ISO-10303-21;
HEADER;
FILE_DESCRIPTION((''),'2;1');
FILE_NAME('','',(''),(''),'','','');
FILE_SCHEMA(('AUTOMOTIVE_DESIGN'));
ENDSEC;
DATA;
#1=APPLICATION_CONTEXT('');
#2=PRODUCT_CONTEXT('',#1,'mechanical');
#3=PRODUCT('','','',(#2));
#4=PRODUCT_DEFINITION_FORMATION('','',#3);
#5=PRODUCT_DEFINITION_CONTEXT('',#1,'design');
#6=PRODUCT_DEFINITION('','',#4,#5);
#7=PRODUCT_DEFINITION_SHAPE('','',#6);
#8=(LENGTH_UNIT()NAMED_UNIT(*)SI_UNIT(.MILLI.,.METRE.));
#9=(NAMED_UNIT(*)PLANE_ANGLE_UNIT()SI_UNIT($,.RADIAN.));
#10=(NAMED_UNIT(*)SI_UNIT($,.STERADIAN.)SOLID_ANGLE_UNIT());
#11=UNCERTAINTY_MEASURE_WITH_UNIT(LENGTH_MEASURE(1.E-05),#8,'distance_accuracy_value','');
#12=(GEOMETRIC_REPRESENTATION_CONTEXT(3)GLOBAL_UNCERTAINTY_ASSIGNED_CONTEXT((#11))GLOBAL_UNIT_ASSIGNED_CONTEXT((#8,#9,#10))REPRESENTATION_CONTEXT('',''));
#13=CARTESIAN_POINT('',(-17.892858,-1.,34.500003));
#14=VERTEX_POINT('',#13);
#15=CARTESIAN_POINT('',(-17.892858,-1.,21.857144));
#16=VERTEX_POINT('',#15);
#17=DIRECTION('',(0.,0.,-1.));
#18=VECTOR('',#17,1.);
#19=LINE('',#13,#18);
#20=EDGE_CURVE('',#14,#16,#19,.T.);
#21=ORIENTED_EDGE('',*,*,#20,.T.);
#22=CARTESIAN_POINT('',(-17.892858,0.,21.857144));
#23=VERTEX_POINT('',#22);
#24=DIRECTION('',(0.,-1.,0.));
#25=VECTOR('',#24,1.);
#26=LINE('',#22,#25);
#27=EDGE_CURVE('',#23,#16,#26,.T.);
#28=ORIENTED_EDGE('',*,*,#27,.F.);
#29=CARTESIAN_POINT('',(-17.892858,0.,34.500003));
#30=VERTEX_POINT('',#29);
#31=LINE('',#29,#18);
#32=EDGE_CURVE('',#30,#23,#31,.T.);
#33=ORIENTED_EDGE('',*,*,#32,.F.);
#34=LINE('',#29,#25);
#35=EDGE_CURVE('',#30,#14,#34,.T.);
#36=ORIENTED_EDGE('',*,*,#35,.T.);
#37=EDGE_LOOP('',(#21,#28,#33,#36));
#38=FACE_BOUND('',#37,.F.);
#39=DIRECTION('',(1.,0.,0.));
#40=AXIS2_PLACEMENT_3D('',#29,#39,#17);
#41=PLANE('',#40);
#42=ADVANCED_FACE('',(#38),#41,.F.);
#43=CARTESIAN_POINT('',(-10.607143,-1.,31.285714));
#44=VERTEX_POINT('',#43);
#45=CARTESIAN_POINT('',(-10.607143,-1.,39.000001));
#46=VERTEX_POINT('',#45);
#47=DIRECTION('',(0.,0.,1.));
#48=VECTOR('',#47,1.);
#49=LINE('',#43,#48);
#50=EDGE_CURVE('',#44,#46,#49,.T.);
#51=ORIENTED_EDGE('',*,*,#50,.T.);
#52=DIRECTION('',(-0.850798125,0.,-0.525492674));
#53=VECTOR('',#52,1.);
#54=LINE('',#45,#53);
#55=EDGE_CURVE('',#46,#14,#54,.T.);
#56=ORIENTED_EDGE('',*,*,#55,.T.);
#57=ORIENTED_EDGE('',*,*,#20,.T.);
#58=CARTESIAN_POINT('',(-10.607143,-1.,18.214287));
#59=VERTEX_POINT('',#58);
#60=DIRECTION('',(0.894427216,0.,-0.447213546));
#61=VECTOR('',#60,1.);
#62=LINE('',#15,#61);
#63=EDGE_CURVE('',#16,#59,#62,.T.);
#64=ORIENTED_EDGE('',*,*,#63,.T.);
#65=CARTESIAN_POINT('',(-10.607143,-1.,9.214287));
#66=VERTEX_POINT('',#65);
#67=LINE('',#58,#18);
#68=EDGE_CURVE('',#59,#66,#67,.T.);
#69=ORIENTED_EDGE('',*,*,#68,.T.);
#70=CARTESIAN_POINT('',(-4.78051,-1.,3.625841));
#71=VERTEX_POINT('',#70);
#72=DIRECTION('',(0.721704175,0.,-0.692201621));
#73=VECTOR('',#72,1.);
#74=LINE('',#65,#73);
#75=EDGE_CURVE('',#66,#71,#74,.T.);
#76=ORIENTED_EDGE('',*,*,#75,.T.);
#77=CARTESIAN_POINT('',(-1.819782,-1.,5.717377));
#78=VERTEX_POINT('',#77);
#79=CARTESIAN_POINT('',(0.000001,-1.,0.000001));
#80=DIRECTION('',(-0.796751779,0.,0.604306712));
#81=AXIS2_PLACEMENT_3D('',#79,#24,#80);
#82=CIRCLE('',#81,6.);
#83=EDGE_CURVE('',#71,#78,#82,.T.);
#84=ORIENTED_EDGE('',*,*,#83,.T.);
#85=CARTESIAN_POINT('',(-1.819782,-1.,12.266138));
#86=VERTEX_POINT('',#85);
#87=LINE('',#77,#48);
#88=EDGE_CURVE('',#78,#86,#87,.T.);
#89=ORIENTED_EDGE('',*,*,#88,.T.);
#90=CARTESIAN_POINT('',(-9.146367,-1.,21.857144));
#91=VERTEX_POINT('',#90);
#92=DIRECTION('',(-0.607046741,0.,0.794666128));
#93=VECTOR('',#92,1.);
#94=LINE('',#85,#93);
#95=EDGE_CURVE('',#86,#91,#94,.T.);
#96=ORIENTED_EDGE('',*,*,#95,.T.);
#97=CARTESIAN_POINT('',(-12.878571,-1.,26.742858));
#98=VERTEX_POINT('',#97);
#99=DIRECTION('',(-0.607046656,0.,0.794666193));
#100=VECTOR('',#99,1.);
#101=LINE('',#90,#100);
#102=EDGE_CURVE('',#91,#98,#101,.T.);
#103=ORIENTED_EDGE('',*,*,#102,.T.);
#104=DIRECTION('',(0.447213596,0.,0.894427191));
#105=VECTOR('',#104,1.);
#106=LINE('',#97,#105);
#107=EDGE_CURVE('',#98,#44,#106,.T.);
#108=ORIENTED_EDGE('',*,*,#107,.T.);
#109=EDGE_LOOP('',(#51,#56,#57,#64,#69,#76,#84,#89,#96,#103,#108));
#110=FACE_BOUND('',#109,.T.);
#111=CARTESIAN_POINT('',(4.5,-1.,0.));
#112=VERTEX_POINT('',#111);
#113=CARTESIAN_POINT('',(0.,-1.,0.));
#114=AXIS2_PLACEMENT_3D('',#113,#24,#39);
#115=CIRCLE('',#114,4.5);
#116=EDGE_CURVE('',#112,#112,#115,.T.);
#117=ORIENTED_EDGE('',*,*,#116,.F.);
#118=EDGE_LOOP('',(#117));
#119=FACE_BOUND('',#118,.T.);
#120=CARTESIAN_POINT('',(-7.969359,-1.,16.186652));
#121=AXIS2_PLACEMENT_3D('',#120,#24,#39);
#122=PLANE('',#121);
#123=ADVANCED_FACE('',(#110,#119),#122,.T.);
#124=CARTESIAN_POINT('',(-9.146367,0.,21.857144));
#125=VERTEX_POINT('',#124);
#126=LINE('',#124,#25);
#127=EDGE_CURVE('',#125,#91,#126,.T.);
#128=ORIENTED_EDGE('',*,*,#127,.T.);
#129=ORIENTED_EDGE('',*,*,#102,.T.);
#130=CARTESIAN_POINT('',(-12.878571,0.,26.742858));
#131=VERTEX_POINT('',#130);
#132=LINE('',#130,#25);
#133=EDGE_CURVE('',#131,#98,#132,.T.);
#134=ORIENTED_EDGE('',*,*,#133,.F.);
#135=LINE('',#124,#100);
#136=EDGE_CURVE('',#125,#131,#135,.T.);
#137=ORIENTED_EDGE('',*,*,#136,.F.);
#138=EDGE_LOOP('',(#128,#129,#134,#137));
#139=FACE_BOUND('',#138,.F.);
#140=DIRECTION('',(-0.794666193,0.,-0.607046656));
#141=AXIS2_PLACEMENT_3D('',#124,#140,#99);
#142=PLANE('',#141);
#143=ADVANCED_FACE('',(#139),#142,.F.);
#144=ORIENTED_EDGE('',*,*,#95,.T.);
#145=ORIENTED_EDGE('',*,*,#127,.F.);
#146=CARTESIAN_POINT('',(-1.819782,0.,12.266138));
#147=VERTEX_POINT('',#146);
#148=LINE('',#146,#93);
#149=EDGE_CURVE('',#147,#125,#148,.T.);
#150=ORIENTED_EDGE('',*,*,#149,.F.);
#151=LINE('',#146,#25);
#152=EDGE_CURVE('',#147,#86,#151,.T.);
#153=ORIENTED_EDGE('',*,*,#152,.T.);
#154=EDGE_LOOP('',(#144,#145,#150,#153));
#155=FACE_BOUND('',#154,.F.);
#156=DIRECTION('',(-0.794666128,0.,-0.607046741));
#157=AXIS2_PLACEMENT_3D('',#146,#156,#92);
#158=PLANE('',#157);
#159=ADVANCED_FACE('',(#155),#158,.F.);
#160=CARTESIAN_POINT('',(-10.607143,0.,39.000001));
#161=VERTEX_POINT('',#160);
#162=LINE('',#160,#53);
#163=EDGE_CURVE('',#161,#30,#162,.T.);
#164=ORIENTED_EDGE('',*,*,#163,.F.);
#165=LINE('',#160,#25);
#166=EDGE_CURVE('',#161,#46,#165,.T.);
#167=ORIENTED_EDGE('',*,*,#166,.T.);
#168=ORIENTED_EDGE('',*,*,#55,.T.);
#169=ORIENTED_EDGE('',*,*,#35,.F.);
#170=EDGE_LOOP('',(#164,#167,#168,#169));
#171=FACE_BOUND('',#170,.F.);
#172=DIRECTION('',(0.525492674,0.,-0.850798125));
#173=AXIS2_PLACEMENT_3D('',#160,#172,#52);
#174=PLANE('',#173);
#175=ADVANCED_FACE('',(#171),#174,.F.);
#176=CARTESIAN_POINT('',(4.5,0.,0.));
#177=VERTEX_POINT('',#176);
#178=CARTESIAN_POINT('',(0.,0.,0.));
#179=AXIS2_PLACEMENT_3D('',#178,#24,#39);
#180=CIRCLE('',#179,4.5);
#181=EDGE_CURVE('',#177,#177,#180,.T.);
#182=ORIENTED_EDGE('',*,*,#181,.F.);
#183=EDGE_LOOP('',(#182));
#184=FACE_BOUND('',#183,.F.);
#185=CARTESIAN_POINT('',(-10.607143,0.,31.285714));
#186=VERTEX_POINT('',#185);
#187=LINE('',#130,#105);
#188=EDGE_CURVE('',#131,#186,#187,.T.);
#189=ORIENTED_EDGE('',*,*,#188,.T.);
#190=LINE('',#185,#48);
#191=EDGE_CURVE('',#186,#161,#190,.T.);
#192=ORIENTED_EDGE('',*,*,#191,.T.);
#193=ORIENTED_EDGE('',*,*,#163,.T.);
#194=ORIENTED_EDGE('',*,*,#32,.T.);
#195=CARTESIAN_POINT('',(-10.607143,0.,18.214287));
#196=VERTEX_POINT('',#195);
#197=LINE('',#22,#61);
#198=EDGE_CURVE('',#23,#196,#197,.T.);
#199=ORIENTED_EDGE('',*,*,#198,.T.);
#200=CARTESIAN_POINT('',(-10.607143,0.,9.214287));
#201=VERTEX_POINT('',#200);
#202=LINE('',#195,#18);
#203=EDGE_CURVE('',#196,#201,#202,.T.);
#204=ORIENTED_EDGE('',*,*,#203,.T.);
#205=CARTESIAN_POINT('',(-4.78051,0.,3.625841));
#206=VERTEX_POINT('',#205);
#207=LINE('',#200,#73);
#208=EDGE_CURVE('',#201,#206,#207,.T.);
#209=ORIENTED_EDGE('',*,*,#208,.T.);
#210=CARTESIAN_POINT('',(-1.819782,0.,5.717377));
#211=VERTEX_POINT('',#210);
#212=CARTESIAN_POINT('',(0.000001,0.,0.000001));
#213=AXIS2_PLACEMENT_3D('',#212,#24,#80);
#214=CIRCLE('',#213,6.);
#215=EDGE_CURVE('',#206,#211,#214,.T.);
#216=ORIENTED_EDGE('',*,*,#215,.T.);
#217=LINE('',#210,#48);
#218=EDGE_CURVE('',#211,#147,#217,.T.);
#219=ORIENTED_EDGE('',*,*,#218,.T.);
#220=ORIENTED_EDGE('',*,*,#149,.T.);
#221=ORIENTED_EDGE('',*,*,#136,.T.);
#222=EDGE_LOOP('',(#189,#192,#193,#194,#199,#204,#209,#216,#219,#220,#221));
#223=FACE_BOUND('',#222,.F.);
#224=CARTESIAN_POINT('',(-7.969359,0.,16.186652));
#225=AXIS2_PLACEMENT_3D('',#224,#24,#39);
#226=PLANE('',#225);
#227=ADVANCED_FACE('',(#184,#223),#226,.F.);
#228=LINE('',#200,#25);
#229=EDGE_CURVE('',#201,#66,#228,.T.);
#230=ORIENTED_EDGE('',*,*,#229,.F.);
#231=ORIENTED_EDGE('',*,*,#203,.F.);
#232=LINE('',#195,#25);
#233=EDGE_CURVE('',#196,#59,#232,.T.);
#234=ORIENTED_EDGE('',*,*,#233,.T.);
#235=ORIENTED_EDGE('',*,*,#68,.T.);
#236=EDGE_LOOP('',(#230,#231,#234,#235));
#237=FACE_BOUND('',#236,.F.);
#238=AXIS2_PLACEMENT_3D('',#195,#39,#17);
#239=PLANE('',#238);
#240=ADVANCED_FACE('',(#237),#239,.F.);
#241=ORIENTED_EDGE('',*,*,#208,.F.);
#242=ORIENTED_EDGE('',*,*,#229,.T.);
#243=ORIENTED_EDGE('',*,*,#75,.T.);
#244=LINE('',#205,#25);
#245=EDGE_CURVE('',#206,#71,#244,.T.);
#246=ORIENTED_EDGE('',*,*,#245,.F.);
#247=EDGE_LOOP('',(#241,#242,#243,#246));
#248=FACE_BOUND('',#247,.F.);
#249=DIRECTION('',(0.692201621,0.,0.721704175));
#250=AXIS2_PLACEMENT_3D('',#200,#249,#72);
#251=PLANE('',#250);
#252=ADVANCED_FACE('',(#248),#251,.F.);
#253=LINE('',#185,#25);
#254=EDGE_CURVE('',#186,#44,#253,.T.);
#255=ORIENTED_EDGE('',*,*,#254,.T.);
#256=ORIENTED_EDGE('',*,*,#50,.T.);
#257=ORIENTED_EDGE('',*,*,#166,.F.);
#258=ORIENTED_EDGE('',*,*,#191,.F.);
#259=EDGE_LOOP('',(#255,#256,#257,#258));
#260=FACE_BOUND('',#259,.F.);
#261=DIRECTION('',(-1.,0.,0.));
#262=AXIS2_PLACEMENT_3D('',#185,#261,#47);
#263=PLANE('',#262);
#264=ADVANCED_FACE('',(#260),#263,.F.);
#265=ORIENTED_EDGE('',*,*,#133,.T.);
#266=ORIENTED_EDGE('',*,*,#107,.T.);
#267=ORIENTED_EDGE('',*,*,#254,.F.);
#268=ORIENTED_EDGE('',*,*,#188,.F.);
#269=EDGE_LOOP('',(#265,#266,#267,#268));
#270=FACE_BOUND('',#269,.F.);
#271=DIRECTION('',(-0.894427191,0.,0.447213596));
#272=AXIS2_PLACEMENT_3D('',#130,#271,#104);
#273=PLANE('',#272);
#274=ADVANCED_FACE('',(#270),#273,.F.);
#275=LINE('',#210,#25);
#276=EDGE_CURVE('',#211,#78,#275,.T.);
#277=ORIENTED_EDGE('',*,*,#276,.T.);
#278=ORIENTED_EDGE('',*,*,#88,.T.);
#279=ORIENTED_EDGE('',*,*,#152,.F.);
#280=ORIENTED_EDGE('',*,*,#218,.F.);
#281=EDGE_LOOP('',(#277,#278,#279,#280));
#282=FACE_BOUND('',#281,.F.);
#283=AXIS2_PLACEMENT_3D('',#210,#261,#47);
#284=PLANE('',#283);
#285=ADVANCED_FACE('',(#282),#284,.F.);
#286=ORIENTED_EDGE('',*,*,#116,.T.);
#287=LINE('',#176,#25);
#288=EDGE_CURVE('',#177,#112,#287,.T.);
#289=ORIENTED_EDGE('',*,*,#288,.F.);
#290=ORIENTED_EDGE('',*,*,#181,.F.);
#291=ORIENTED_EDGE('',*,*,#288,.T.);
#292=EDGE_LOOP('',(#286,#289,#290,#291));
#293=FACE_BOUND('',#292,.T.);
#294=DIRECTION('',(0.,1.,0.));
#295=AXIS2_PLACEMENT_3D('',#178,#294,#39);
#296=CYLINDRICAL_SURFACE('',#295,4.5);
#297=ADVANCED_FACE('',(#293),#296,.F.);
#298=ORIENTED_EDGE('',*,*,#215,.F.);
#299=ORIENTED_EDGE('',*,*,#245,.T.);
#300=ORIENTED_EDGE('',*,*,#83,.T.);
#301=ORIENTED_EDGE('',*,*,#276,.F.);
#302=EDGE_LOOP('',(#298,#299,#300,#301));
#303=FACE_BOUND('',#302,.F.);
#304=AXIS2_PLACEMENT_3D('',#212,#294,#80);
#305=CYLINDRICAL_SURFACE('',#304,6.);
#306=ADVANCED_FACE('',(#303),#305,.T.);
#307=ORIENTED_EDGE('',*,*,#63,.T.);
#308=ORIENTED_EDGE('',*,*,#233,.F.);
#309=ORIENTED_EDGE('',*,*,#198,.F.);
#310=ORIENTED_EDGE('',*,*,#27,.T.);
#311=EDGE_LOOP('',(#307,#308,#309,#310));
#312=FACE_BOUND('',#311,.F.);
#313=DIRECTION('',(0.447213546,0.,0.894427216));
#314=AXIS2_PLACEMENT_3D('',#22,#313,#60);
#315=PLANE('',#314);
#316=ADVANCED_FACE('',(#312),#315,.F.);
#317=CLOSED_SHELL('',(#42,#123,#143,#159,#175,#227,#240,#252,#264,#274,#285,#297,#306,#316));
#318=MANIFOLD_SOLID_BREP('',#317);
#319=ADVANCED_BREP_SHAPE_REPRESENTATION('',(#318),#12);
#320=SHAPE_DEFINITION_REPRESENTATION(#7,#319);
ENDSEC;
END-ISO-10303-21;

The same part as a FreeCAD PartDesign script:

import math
import FreeCAD as App
import Part
import Sketcher

V = App.Vector

doc = App.newDocument("Part")
params = doc.addObject("Spreadsheet::Sheet", "Params")
for row, (alias, value) in enumerate([
    ("sketch1_diameter", "9 mm"),
    ("sketch1_radius", "6 mm"),
    ("sketch1_height", "9 mm"),
    ("pad1_length", "1 mm"),
], start=1):
    params.set(f"A{row}", alias)
    params.set(f"B{row}", "=" + value)
    params.setAlias(f"B{row}", alias)

body = doc.addObject("PartDesign::Body", "Body")

sketch1 = doc.addObject("Sketcher::SketchObject", "Sketch")
body.addObject(sketch1)
sketch1.AttachmentSupport = (doc.XZ_Plane, [""])
sketch1.MapMode = "FlatFace"
sketch1.addGeometry([
    Part.LineSegment(V(-10.607143, 9.214287, 0), V(-4.78051, 3.625841, 0)),
    Part.ArcOfCircle(Part.Circle(V(0.000001, 0.000001, 0), V(0, 0, 1), 6), math.radians(142.82103), math.radians(467.655744)),
    Part.LineSegment(V(-1.819782, 5.717377, 0), V(-1.819782, 12.266138, 0)),
    Part.LineSegment(V(-1.819782, 12.266138, 0), V(-9.146367, 21.857144, 0)),
    Part.LineSegment(V(-9.146367, 21.857144, 0), V(-12.878571, 26.742858, 0)),
    Part.LineSegment(V(-12.878571, 26.742858, 0), V(-10.607143, 31.285714, 0)),
    Part.LineSegment(V(-10.607143, 31.285714, 0), V(-10.607143, 39.000001, 0)),
    Part.LineSegment(V(-10.607143, 39.000001, 0), V(-17.892858, 34.500003, 0)),
    Part.LineSegment(V(-17.892858, 34.500003, 0), V(-17.892858, 21.857144, 0)),
    Part.LineSegment(V(-17.892858, 21.857144, 0), V(-10.607143, 18.214287, 0)),
    Part.LineSegment(V(-10.607143, 18.214287, 0), V(-10.607143, 9.214287, 0)),
    Part.Circle(V(0, 0, 0), V(0, 0, 1), 4.5),
], False)
sketch1.addConstraint([
    Sketcher.Constraint("Coincident", 0, 2, 1, 1),
    Sketcher.Constraint("Coincident", 1, 2, 2, 1),
    Sketcher.Constraint("Coincident", 2, 2, 3, 1),
    Sketcher.Constraint("Coincident", 3, 2, 4, 1),
    Sketcher.Constraint("Coincident", 4, 2, 5, 1),
    Sketcher.Constraint("Coincident", 5, 2, 6, 1),
    Sketcher.Constraint("Coincident", 6, 2, 7, 1),
    Sketcher.Constraint("Coincident", 7, 2, 8, 1),
    Sketcher.Constraint("Coincident", 8, 2, 9, 1),
    Sketcher.Constraint("Coincident", 9, 2, 10, 1),
    Sketcher.Constraint("Coincident", 10, 2, 0, 1),
    Sketcher.Constraint("Vertical", 2),
    Sketcher.Constraint("Vertical", 6),
    Sketcher.Constraint("Vertical", 8),
    Sketcher.Constraint("Vertical", 10),
    Sketcher.Constraint("Coincident", 1, 3, -1, 1),
    Sketcher.Constraint("Coincident", 11, 3, -1, 1),
    Sketcher.Constraint("Parallel", 3, 4),
    Sketcher.Constraint("Perpendicular", 5, 9),
    Sketcher.Constraint("Horizontal", 3, 2, 8, 2),
    Sketcher.Constraint("Vertical", 6, 2, 9, 2),
    Sketcher.Constraint("Diameter", 11, 9.0),
    Sketcher.Constraint("Radius", 1, 6.0),
    Sketcher.Constraint("DistanceY", 10, 2, 10, 1, 9.0),
    Sketcher.Constraint("DistanceY", -1, 1, 6, 2, 39.000001),
    Sketcher.Constraint("DistanceY", 2, 1, 2, 2, 6.548761),
    Sketcher.Constraint("DistanceY", 8, 2, 8, 1, 12.642859),
    Sketcher.Constraint("Distance", 7, 8.563389),
    Sketcher.Constraint("DistanceY", 6, 1, 6, 2, 7.714287),
    Sketcher.Constraint("DistanceX", 0, 2, -1, 1, 4.78051),
    Sketcher.Constraint("DistanceX", 1, 2, -1, 1, 1.819782),
    Sketcher.Constraint("DistanceX", 4, 2, -1, 1, 12.878571),
    Sketcher.Constraint("DistanceX", 7, 2, -1, 1, 17.892858),
    Sketcher.Constraint("DistanceY", 2, 2, 4, 2, 14.47672),
    Sketcher.Constraint("DistanceX", 4, 2, 5, 2, 2.271428),
])
sketch1.setExpression("Constraints[21]", "Params.sketch1_diameter")
sketch1.setExpression("Constraints[22]", "Params.sketch1_radius")
sketch1.setExpression("Constraints[23]", "Params.sketch1_height")
pad1 = doc.addObject("PartDesign::Pad", "Pad")
body.addObject(pad1)
pad1.Profile = sketch1
pad1.setExpression("Length", "Params.pad1_length")

doc.recompute()
